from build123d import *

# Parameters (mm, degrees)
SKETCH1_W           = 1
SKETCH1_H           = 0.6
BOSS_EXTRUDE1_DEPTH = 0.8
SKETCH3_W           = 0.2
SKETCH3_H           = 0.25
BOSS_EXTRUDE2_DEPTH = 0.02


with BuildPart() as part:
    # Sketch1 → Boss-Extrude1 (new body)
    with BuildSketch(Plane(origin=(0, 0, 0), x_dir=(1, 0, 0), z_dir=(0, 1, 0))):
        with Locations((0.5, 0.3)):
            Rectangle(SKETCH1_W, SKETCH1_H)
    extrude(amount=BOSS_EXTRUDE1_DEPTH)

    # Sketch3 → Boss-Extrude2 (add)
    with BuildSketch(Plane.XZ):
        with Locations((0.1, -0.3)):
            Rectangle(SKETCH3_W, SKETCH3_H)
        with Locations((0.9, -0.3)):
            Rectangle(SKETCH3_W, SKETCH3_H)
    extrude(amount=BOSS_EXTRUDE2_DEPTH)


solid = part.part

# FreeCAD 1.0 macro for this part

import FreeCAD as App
import Part
import Sketcher


def add_polygon(sketch, points):
    """Adds a closed chain of lines whose ends are joined by coincident constraints."""
    first, n = sketch.GeometryCount, len(points)
    for a, b in zip(points, points[1:] + points[:1]):
        sketch.addGeometry(Part.LineSegment(App.Vector(*a, 0), App.Vector(*b, 0)), False)
    for i in range(n):
        sketch.addConstraint(Sketcher.Constraint("Coincident", first + i, 2, first + (i + 1) % n, 1))

doc = App.newDocument("Part")
body = doc.addObject("PartDesign::Body", "Body")

sketch1 = doc.addObject("Sketcher::SketchObject", "Sketch")
body.addObject(sketch1)
sketch1.AttachmentSupport = (doc.XZ_Plane, [""])
sketch1.MapMode = "FlatFace"
add_polygon(sketch1, [(0, -0.6), (0, 0), (1, 0), (1, -0.6)])
sketch1.addConstraint([
    Sketcher.Constraint("Vertical", 0),
    Sketcher.Constraint("Horizontal", 1),
    Sketcher.Constraint("Vertical", 2),
    Sketcher.Constraint("Horizontal", 3),
    Sketcher.Constraint("Coincident", 0, 2, -1, 1),
    Sketcher.Constraint("DistanceX", 1, 1, 1, 2, 1.0),
    Sketcher.Constraint("DistanceY", 0, 1, 0, 2, 0.6),
])
pad1 = doc.addObject("PartDesign::Pad", "Pad")
body.addObject(pad1)
pad1.Profile = sketch1
pad1.Length = 0.8
pad1.Reversed = True

sketch2 = doc.addObject("Sketcher::SketchObject", "Sketch001")
body.addObject(sketch2)
sketch2.AttachmentSupport = (doc.XZ_Plane, [""])
sketch2.MapMode = "FlatFace"
add_polygon(sketch2, [(0, -0.17), (0, -0.42), (0.2, -0.42), (0.2, -0.17)])
add_polygon(sketch2, [(0.8, -0.17), (0.8, -0.42), (1, -0.42), (1, -0.17)])
sketch2.addConstraint([
    Sketcher.Constraint("Vertical", 0),
    Sketcher.Constraint("Horizontal", 1),
    Sketcher.Constraint("Vertical", 2),
    Sketcher.Constraint("Horizontal", 3),
    Sketcher.Constraint("Vertical", 4),
    Sketcher.Constraint("Horizontal", 5),
    Sketcher.Constraint("Vertical", 6),
    Sketcher.Constraint("Horizontal", 7),
    Sketcher.Constraint("PointOnObject", 0, 2, -2),
    Sketcher.Constraint("Horizontal", 1, 2, 4, 2),
    Sketcher.Constraint("Horizontal", 3, 2, 6, 2),
    Sketcher.Constraint("Equal", 3, 5),
    Sketcher.Constraint("DistanceX", 1, 1, 1, 2, 0.2),
    Sketcher.Constraint("DistanceX", -1, 1, 5, 2, 1.0),
    Sketcher.Constraint("DistanceY", 0, 2, 0, 1, 0.25),
    Sketcher.Constraint("DistanceY", 0, 2, -1, 1, 0.425),
])
pad2 = doc.addObject("PartDesign::Pad", "Pad001")
body.addObject(pad2)
pad2.Profile = sketch2
pad2.Length = 0.02

doc.recompute()
